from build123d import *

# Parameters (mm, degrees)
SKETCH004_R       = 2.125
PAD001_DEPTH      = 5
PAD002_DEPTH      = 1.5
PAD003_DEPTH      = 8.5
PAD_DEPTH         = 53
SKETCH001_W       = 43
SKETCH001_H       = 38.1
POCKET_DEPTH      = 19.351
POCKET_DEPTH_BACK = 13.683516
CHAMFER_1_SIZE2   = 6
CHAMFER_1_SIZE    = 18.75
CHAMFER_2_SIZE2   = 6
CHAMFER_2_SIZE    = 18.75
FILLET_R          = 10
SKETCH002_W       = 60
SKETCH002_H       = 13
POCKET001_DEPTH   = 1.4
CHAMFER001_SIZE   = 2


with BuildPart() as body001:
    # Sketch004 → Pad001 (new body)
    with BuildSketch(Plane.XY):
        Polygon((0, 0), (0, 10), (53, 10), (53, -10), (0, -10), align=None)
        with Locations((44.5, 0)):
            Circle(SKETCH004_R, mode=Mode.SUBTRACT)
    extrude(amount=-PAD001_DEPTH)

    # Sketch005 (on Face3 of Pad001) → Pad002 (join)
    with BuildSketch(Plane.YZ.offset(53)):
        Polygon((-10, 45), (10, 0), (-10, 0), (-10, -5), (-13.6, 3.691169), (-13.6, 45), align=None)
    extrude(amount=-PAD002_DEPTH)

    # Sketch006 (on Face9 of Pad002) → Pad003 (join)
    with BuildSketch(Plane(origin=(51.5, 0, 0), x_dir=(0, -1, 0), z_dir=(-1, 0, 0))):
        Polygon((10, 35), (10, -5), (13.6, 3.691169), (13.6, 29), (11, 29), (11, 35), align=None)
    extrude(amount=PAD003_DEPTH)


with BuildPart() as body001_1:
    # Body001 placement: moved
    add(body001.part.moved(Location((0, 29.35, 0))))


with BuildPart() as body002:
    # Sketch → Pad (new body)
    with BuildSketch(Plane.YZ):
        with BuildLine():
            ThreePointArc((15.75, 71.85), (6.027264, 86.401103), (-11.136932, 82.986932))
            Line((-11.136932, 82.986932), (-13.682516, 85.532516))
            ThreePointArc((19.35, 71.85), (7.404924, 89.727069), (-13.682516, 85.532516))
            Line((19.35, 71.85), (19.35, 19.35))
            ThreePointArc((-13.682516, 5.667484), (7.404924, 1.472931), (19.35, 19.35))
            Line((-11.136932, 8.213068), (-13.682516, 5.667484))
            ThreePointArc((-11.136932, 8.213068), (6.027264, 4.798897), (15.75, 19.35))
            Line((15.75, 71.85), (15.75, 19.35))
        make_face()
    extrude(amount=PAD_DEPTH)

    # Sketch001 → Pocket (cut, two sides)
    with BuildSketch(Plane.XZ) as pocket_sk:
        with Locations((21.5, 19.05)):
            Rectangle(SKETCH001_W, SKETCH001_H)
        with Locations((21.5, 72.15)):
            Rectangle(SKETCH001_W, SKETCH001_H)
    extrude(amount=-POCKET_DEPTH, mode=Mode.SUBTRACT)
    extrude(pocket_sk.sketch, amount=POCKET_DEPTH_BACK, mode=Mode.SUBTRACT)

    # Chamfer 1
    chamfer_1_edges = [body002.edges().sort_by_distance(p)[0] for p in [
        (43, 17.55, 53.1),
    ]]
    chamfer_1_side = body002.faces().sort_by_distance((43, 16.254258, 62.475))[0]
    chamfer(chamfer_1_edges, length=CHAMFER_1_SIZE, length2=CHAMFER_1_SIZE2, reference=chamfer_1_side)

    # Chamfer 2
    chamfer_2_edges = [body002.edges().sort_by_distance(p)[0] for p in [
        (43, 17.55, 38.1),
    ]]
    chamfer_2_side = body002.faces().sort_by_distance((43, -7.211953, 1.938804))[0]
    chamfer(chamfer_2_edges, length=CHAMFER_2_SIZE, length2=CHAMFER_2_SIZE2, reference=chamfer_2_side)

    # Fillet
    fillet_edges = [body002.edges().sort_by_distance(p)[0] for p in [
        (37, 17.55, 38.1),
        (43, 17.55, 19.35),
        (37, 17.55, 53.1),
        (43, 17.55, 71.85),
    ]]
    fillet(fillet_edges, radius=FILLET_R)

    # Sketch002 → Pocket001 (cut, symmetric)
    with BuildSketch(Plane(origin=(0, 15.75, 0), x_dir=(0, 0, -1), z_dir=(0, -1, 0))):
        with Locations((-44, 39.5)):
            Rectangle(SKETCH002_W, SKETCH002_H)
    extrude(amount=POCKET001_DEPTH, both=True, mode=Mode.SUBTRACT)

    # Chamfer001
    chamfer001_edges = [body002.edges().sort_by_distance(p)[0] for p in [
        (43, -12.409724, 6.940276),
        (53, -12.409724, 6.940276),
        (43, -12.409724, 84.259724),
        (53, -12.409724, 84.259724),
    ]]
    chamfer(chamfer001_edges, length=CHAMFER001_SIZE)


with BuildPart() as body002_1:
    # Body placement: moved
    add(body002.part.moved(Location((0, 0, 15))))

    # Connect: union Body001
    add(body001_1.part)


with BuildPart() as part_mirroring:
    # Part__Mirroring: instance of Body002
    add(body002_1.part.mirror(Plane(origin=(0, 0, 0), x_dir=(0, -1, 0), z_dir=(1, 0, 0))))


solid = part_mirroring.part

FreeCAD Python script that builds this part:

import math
import FreeCAD as App
import Part
import Sketcher
from FreeCAD import Vector
Q = App.Units.Quantity


def edges_at(feature, points):
    """Names of the edges that pass closest to the given points."""
    edges = feature.Shape.Edges
    near = lambda p: min(range(len(edges)), key=lambda i: edges[i].distToShape(Part.Vertex(*p))[0])
    return sorted({f"Edge{near(p) + 1}" for p in points})

doc = App.newDocument("Part")
body = doc.addObject("PartDesign::Body", "Body")

# Sketch on XY plane
sketch1 = doc.addObject("Sketcher::SketchObject", "Sketch")
body.addObject(sketch1)
sketch1.AttachmentSupport = (doc.XY_Plane, [""])
sketch1.MapMode = "FlatFace"
sketch1.addGeometry(Part.LineSegment(Vector(0, 10, 0), Vector(0, -10, 0)), False)
sketch1.addGeometry(Part.LineSegment(Vector(0, -10, 0), Vector(53, -10, 0)), False)
sketch1.addGeometry(Part.LineSegment(Vector(53, -10, 0), Vector(53, 10, 0)), False)
sketch1.addGeometry(Part.LineSegment(Vector(53, 10, 0), Vector(0, 10, 0)), False)
sketch1.addGeometry(Part.Circle(Vector(44.5, 0, 0), Vector(0, 0, 1), 2.1), False)
sketch1.addConstraint(Sketcher.Constraint("Coincident", 0, 2, 1, 1))
sketch1.addConstraint(Sketcher.Constraint("Coincident", 1, 2, 2, 1))
sketch1.addConstraint(Sketcher.Constraint("Coincident", 2, 2, 3, 1))
sketch1.addConstraint(Sketcher.Constraint("Coincident", 3, 2, 0, 1))
sketch1.addConstraint(Sketcher.Constraint("Vertical", 0))
sketch1.addConstraint(Sketcher.Constraint("Horizontal", 1))
sketch1.addConstraint(Sketcher.Constraint("Vertical", 2))
sketch1.addConstraint(Sketcher.Constraint("Horizontal", 3))
sketch1.addConstraint(Sketcher.Constraint("Symmetric", 0, 2, 3, 2, -1, 1))
sketch1.addConstraint(Sketcher.Constraint("PointOnObject", 4, 3, -1))
sketch1.addConstraint(Sketcher.Constraint("Diameter", 4, Q("4.25 mm")))
sketch1.addConstraint(Sketcher.Constraint("DistanceX", 1, 1, 1, 2, Q("53 mm")))
sketch1.addConstraint(Sketcher.Constraint("DistanceY", 0, 2, 0, 1, Q("20 mm")))
sketch1.addConstraint(Sketcher.Constraint("DistanceX", -1, 1, 4, 3, Q("44.5 mm")))
pad1 = doc.addObject("PartDesign::Pad", "Pad")
body.addObject(pad1)
pad1.Profile = sketch1
pad1.Length = 5
pad1.Reversed = True

# Sketch on YZ plane
sketch2 = doc.addObject("Sketcher::SketchObject", "Sketch001")
body.addObject(sketch2)
sketch2.AttachmentSupport = (doc.YZ_Plane, [""])
sketch2.MapMode = "FlatFace"
sketch2.AttachmentOffset = App.Placement(Vector(0, 0, 53), App.Rotation())
sketch2.addGeometry(Part.LineSegment(Vector(10, 0, 0), Vector(-10, 45, 0)), False)
sketch2.addGeometry(Part.LineSegment(Vector(-10, 45, 0), Vector(-13.6, 45, 0)), False)
sketch2.addGeometry(Part.LineSegment(Vector(-13.6, 45, 0), Vector(-13.6, 3.7, 0)), False)
sketch2.addGeometry(Part.LineSegment(Vector(-13.6, 3.7, 0), Vector(-10, -5, 0)), False)
sketch2.addGeometry(Part.LineSegment(Vector(-10, -5, 0), Vector(-10, 0, 0)), False)
sketch2.addGeometry(Part.LineSegment(Vector(-10, 0, 0), Vector(10, 0, 0)), False)
sketch2.addConstraint(Sketcher.Constraint("Coincident", 0, 2, 1, 1))
sketch2.addConstraint(Sketcher.Constraint("Coincident", 1, 2, 2, 1))
sketch2.addConstraint(Sketcher.Constraint("Coincident", 2, 2, 3, 1))
sketch2.addConstraint(Sketcher.Constraint("Coincident", 3, 2, 4, 1))
sketch2.addConstraint(Sketcher.Constraint("Coincident", 4, 2, 5, 1))
sketch2.addConstraint(Sketcher.Constraint("Coincident", 5, 2, 0, 1))
sketch2.addConstraint(Sketcher.Constraint("Horizontal", 1))
sketch2.addConstraint(Sketcher.Constraint("Vertical", 2))
sketch2.addConstraint(Sketcher.Constraint("Vertical", 4))
sketch2.addConstraint(Sketcher.Constraint("Horizontal", 5))
sketch2.addConstraint(Sketcher.Constraint("Symmetric", 4, 2, 5, 2, -1, 1))
sketch2.addConstraint(Sketcher.Constraint("Vertical", 0, 2, 3, 2))
sketch2.addConstraint(Sketcher.Constraint("DistanceX", 5, 1, 5, 2, Q("20 mm")))
sketch2.addConstraint(Sketcher.Constraint("DistanceY", 4, 1, 4, 2, Q("5 mm")))
sketch2.addConstraint(Sketcher.Constraint("DistanceX", 1, 2, 1, 1, Q("3.6 mm")))
sketch2.addConstraint(Sketcher.Constraint("DistanceY", -1, 1, 0, 2, Q("45 mm")))
sketch2.addConstraint(Sketcher.Constraint("Angle", 3, Q("-67.5 deg")))
pad2 = doc.addObject("PartDesign::Pad", "Pad001")
body.addObject(pad2)
pad2.Profile = sketch2
pad2.Length = 1.5
pad2.Reversed = True

# Sketch on YZ plane
sketch3 = doc.addObject("Sketcher::SketchObject", "Sketch002")
body.addObject(sketch3)
sketch3.AttachmentSupport = (doc.YZ_Plane, [""])
sketch3.MapMode = "FlatFace"
sketch3.AttachmentOffset = App.Placement(Vector(0, 0, 51.5), App.Rotation())
sketch3.addGeometry(Part.LineSegment(Vector(-10, 35, 0), Vector(-10, -5, 0)), False)
sketch3.addGeometry(Part.LineSegment(Vector(-10, -5, 0), Vector(-13.6, 3.7, 0)), False)
sketch3.addGeometry(Part.LineSegment(Vector(-13.6, 3.7, 0), Vector(-13.6, 29, 0)), False)
sketch3.addGeometry(Part.LineSegment(Vector(-13.6, 29, 0), Vector(-11, 29, 0)), False)
sketch3.addGeometry(Part.LineSegment(Vector(-11, 29, 0), Vector(-11, 35, 0)), False)
sketch3.addGeometry(Part.LineSegment(Vector(-11, 35, 0), Vector(-10, 35, 0)), False)
sketch3.addConstraint(Sketcher.Constraint("Coincident", 0, 2, 1, 1))
sketch3.addConstraint(Sketcher.Constraint("Coincident", 1, 2, 2, 1))
sketch3.addConstraint(Sketcher.Constraint("Coincident", 2, 2, 3, 1))
sketch3.addConstraint(Sketcher.Constraint("Coincident", 3, 2, 4, 1))
sketch3.addConstraint(Sketcher.Constraint("Coincident", 4, 2, 5, 1))
sketch3.addConstraint(Sketcher.Constraint("Coincident", 5, 2, 0, 1))
sketch3.addConstraint(Sketcher.Constraint("Vertical", 0))
sketch3.addConstraint(Sketcher.Constraint("Vertical", 2))
sketch3.addConstraint(Sketcher.Constraint("Horizontal", 3))
sketch3.addConstraint(Sketcher.Constraint("Vertical", 4))
sketch3.addConstraint(Sketcher.Constraint("Horizontal", 5))
sketch3.addConstraint(Sketcher.Constraint("DistanceX", 5, 1, 5, 2, Q("1 mm")))
sketch3.addConstraint(Sketcher.Constraint("DistanceY", 0, 2, 0, 1, Q("40 mm")))
sketch3.addConstraint(Sketcher.Constraint("DistanceY", 4, 1, 4, 2, Q("6 mm")))
sketch3.addConstraint(Sketcher.Constraint("DistanceX", 3, 1, 3, 2, Q("2.6 mm")))
sketch3.addConstraint(Sketcher.Constraint("DistanceX", 0, 2, -1, 1, Q("10 mm")))
sketch3.addConstraint(Sketcher.Constraint("DistanceY", 0, 2, -1, 1, Q("5 mm")))
sketch3.addConstraint(Sketcher.Constraint("Angle", 1, Q("112.5 deg")))
pad3 = doc.addObject("PartDesign::Pad", "Pad002")
body.addObject(pad3)
pad3.Profile = sketch3
pad3.Length = 8.5
pad3.Reversed = True
body2 = doc.addObject("PartDesign::Body", "Body001")
doc.recompute()

body.Placement = App.Placement(Vector(0, 29.35, 0), App.Rotation(Vector(0, 0, 1), 0))
boolean = doc.addObject("PartDesign::Boolean", "Boolean")
body2.addObject(boolean)
boolean.Type = "Fuse"
boolean.addObjects([body])
body3 = doc.addObject("PartDesign::Body", "Body002")

# Sketch on YZ plane
sketch4 = doc.addObject("Sketcher::SketchObject", "Sketch003")
body3.addObject(sketch4)
sketch4.AttachmentSupport = (doc.getObject("YZ_Plane002"), [""])
sketch4.MapMode = "FlatFace"
sketch4.addGeometry(Part.ArcOfCircle(Part.Circle(Vector(0, 71.9, 0), Vector(0, 0, 1), 15.8), math.radians(0), math.radians(135)), False)
sketch4.addGeometry(Part.LineSegment(Vector(15.8, 71.8, 0), Vector(15.8, 19.4, 0)), False)
sketch4.addGeometry(Part.ArcOfCircle(Part.Circle(Vector(0, 19.3, 0), Vector(0, 0, 1), 15.8), math.radians(-135), math.radians(0)), False)
sketch4.addGeometry(Part.LineSegment(Vector(-11.1, 8.2, 0), Vector(-13.7, 5.7, 0)), False)
sketch4.addGeometry(Part.ArcOfCircle(Part.Circle(Vector(0, 19.4, 0), Vector(0, 0, 1), 19.3), math.radians(-135), math.radians(0)), False)
sketch4.addGeometry(Part.LineSegment(Vector(19.4, 19.4, 0), Vector(19.4, 71.8, 0)), False)
sketch4.addGeometry(Part.ArcOfCircle(Part.Circle(Vector(0, 71.8, 0), Vector(0, 0, 1), 19.3), math.radians(0), math.radians(135)), False)
sketch4.addGeometry(Part.LineSegment(Vector(-13.7, 85.5, 0), Vector(-11.1, 83, 0)), False)
sketch4.addConstraint(Sketcher.Constraint("Tangent", 0, 1, 1, 1))
sketch4.addConstraint(Sketcher.Constraint("Tangent", 1, 2, 2, 2))
sketch4.addConstraint(Sketcher.Constraint("Coincident", 2, 1, 3, 1))
sketch4.addConstraint(Sketcher.Constraint("Coincident", 3, 2, 4, 1))
sketch4.addConstraint(Sketcher.Constraint("Tangent", 4, 2, 5, 1))
sketch4.addConstraint(Sketcher.Constraint("Tangent", 5, 2, 6, 1))
sketch4.addConstraint(Sketcher.Constraint("Coincident", 6, 2, 7, 1))
sketch4.addConstraint(Sketcher.Constraint("Coincident", 7, 2, 0, 2))
sketch4.addConstraint(Sketcher.Constraint("Vertical", 1))
sketch4.addConstraint(Sketcher.Constraint("Vertical", 5))
sketch4.addConstraint(Sketcher.Constraint("Coincident", 4, 3, 2, 3))
sketch4.addConstraint(Sketcher.Constraint("Coincident", 6, 3, 0, 3))
sketch4.addConstraint(Sketcher.Constraint("Equal", 0, 2))
sketch4.addConstraint(Sketcher.Constraint("PointOnObject", 0, 3, -2))
sketch4.addConstraint(Sketcher.Constraint("Perpendicular", 3, 7))
sketch4.addConstraint(Sketcher.Constraint("Vertical", 3, 2, 6, 2))
sketch4.addConstraint(Sketcher.Constraint("Vertical", 2, 1, 7, 2))
sketch4.addConstraint(Sketcher.Constraint("Radius", 0, Q("15.75 mm")))
sketch4.addConstraint(Sketcher.Constraint("Radius", 4, Q("19.35 mm")))
sketch4.addConstraint(Sketcher.Constraint("DistanceY", 1, 2, 1, 1, Q("52.5 mm")))
sketch4.addConstraint(Sketcher.Constraint("DistanceY", -1, 1, 0, 3, Q("71.85 mm")))
sketch4.addConstraint(Sketcher.Constraint("DistanceX", 2, 1, -1, 1, Q("11.136932 mm")))
pad4 = doc.addObject("PartDesign::Pad", "Pad003")
body3.addObject(pad4)
pad4.Profile = sketch4
pad4.Length = 53

# Sketch on XZ plane
sketch5 = doc.addObject("Sketcher::SketchObject", "Sketch004")
body3.addObject(sketch5)
sketch5.AttachmentSupport = (doc.getObject("XZ_Plane002"), [""])
sketch5.MapMode = "FlatFace"
sketch5.addGeometry(Part.LineSegment(Vector(0, 38, 0), Vector(0, 0, 0)), False)
sketch5.addGeometry(Part.LineSegment(Vector(0, 0, 0), Vector(43, 0, 0)), False)
sketch5.addGeometry(Part.LineSegment(Vector(43, 0, 0), Vector(43, 38, 0)), False)
sketch5.addGeometry(Part.LineSegment(Vector(43, 38, 0), Vector(0, 38, 0)), False)
sketch5.addGeometry(Part.LineSegment(Vector(0, 91, 0), Vector(0, 53, 0)), False)
sketch5.addGeometry(Part.LineSegment(Vector(0, 53, 0), Vector(43, 53, 0)), False)
sketch5.addGeometry(Part.LineSegment(Vector(43, 53, 0), Vector(43, 91, 0)), False)
sketch5.addGeometry(Part.LineSegment(Vector(43, 91, 0), Vector(0, 91, 0)), False)
sketch5.addConstraint(Sketcher.Constraint("Coincident", 0, 2, 1, 1))
sketch5.addConstraint(Sketcher.Constraint("Coincident", 1, 2, 2, 1))
sketch5.addConstraint(Sketcher.Constraint("Coincident", 2, 2, 3, 1))
sketch5.addConstraint(Sketcher.Constraint("Coincident", 3, 2, 0, 1))
sketch5.addConstraint(Sketcher.Constraint("Coincident", 4, 2, 5, 1))
sketch5.addConstraint(Sketcher.Constraint("Coincident", 5, 2, 6, 1))
sketch5.addConstraint(Sketcher.Constraint("Coincident", 6, 2, 7, 1))
sketch5.addConstraint(Sketcher.Constraint("Coincident", 7, 2, 4, 1))
sketch5.addConstraint(Sketcher.Constraint("Vertical", 0))
sketch5.addConstraint(Sketcher.Constraint("Horizontal", 1))
sketch5.addConstraint(Sketcher.Constraint("Vertical", 2))
sketch5.addConstraint(Sketcher.Constraint("Horizontal", 3))
sketch5.addConstraint(Sketcher.Constraint("Vertical", 4))
sketch5.addConstraint(Sketcher.Constraint("Horizontal", 5))
sketch5.addConstraint(Sketcher.Constraint("Vertical", 6))
sketch5.addConstraint(Sketcher.Constraint("Horizontal", 7))
sketch5.addConstraint(Sketcher.Constraint("Coincident", 0, 2, -1, 1))
sketch5.addConstraint(Sketcher.Constraint("PointOnObject", 4, 2, -2))
sketch5.addConstraint(Sketcher.Constraint("Vertical", 2, 2, 5, 2))
sketch5.addConstraint(Sketcher.Constraint("Equal", 2, 4))
sketch5.addConstraint(Sketcher.Constraint("DistanceX", 1, 1, 1, 2, Q("43 mm")))
sketch5.addConstraint(Sketcher.Constraint("DistanceY", 0, 2, 0, 1, Q("38.1 mm")))
sketch5.addConstraint(Sketcher.Constraint("DistanceY", 3, 2, 4, 2, Q("15 mm")))
pocket1 = doc.addObject("PartDesign::Pocket", "Pocket")
body3.addObject(pocket1)
pocket1.Profile = sketch5
pocket1.Type = "ThroughAll"
pocket1.Midplane = True
doc.recompute()

chamfer = doc.addObject("PartDesign::Chamfer", "Chamfer")
body3.addObject(chamfer)
chamfer.Base = (pocket1, edges_at(pocket1, [(43, 17.55, 53.1)]))
chamfer.ChamferType = "Two distances"
chamfer.Size = 18.75
chamfer.Size2 = 6
doc.recompute()

chamfer2 = doc.addObject("PartDesign::Chamfer", "Chamfer001")
body3.addObject(chamfer2)
chamfer2.Base = (chamfer, edges_at(chamfer, [(43, 17.55, 38.1)]))
chamfer2.ChamferType = "Two distances"
chamfer2.Size = 18.75
chamfer2.Size2 = 6
chamfer2.FlipDirection = True
doc.recompute()

fillet = doc.addObject("PartDesign::Fillet", "Fillet")
body3.addObject(fillet)
fillet.Base = (chamfer2, edges_at(chamfer2, [
    (37, 17.55, 38.1),
    (43, 17.55, 19.35),
    (37, 17.55, 53.1),
    (43, 17.55, 71.85),
]))
fillet.Radius = 10

# Sketch on XZ plane
sketch6 = doc.addObject("Sketcher::SketchObject", "Sketch005")
body3.addObject(sketch6)
sketch6.AttachmentSupport = (doc.getObject("XZ_Plane002"), [""])
sketch6.MapMode = "FlatFace"
sketch6.AttachmentOffset = App.Placement(Vector(0, 0, -15.75), App.Rotation())
sketch6.addGeometry(Part.LineSegment(Vector(46, 74, 0), Vector(33, 74, 0)), False)
sketch6.addGeometry(Part.LineSegment(Vector(33, 74, 0), Vector(33, 14, 0)), False)
sketch6.addGeometry(Part.LineSegment(Vector(33, 14, 0), Vector(46, 14, 0)), False)
sketch6.addGeometry(Part.LineSegment(Vector(46, 14, 0), Vector(46, 74, 0)), False)
sketch6.addConstraint(Sketcher.Constraint("Coincident", 0, 2, 1, 1))
sketch6.addConstraint(Sketcher.Constraint("Coincident", 1, 2, 2, 1))
sketch6.addConstraint(Sketcher.Constraint("Coincident", 2, 2, 3, 1))
sketch6.addConstraint(Sketcher.Constraint("Coincident", 3, 2, 0, 1))
sketch6.addConstraint(Sketcher.Constraint("Horizontal", 0))
sketch6.addConstraint(Sketcher.Constraint("Vertical", 1))
sketch6.addConstraint(Sketcher.Constraint("Horizontal", 2))
sketch6.addConstraint(Sketcher.Constraint("Vertical", 3))
sketch6.addConstraint(Sketcher.Constraint("DistanceX", 0, 2, 0, 1, Q("13 mm")))
sketch6.addConstraint(Sketcher.Constraint("DistanceY", 1, 2, 1, 1, Q("60 mm")))
sketch6.addConstraint(Sketcher.Constraint("DistanceX", -1, 1, 0, 2, Q("33 mm")))
sketch6.addConstraint(Sketcher.Constraint("DistanceY", -1, 1, 0, 2, Q("74 mm")))
pocket2 = doc.addObject("PartDesign::Pocket", "Pocket001")
body3.addObject(pocket2)
pocket2.Profile = sketch6
pocket2.Length = 2.8
pocket2.Midplane = True
doc.recompute()

chamfer3 = doc.addObject("PartDesign::Chamfer", "Chamfer002")
body3.addObject(chamfer3)
chamfer3.Base = (pocket2, edges_at(pocket2, [
    (43, -12.41, 6.94),
    (53, -12.41, 6.94),
    (43, -12.41, 84.26),
    (53, -12.41, 84.26),
]))
chamfer3.Size = 2
body4 = doc.addObject("PartDesign::Body", "Body003")
doc.recompute()

body3.Placement = App.Placement(Vector(0, 0, 15), App.Rotation(Vector(0, 0, 1), 0))
boolean2 = doc.addObject("PartDesign::Boolean", "Boolean001")
body4.addObject(boolean2)
boolean2.Type = "Fuse"
boolean2.addObjects([body3])
doc.recompute()

boolean3 = doc.addObject("PartDesign::Boolean", "Boolean002")
body4.addObject(boolean3)
boolean3.Type = "Fuse"
boolean3.addObjects([body2])
body5 = doc.addObject("PartDesign::Body", "Body004")
doc.recompute()

mirroring = doc.addObject("Part::Mirroring", "Mirroring")
mirroring.Source = body4
mirroring.Base = Vector(0, 0, 0)
mirroring.Normal = Vector(1, 0, 0)
body5.BaseFeature = mirroring
doc.recompute()
body4.Visibility = False
mirroring.Visibility = False

doc.recompute()
